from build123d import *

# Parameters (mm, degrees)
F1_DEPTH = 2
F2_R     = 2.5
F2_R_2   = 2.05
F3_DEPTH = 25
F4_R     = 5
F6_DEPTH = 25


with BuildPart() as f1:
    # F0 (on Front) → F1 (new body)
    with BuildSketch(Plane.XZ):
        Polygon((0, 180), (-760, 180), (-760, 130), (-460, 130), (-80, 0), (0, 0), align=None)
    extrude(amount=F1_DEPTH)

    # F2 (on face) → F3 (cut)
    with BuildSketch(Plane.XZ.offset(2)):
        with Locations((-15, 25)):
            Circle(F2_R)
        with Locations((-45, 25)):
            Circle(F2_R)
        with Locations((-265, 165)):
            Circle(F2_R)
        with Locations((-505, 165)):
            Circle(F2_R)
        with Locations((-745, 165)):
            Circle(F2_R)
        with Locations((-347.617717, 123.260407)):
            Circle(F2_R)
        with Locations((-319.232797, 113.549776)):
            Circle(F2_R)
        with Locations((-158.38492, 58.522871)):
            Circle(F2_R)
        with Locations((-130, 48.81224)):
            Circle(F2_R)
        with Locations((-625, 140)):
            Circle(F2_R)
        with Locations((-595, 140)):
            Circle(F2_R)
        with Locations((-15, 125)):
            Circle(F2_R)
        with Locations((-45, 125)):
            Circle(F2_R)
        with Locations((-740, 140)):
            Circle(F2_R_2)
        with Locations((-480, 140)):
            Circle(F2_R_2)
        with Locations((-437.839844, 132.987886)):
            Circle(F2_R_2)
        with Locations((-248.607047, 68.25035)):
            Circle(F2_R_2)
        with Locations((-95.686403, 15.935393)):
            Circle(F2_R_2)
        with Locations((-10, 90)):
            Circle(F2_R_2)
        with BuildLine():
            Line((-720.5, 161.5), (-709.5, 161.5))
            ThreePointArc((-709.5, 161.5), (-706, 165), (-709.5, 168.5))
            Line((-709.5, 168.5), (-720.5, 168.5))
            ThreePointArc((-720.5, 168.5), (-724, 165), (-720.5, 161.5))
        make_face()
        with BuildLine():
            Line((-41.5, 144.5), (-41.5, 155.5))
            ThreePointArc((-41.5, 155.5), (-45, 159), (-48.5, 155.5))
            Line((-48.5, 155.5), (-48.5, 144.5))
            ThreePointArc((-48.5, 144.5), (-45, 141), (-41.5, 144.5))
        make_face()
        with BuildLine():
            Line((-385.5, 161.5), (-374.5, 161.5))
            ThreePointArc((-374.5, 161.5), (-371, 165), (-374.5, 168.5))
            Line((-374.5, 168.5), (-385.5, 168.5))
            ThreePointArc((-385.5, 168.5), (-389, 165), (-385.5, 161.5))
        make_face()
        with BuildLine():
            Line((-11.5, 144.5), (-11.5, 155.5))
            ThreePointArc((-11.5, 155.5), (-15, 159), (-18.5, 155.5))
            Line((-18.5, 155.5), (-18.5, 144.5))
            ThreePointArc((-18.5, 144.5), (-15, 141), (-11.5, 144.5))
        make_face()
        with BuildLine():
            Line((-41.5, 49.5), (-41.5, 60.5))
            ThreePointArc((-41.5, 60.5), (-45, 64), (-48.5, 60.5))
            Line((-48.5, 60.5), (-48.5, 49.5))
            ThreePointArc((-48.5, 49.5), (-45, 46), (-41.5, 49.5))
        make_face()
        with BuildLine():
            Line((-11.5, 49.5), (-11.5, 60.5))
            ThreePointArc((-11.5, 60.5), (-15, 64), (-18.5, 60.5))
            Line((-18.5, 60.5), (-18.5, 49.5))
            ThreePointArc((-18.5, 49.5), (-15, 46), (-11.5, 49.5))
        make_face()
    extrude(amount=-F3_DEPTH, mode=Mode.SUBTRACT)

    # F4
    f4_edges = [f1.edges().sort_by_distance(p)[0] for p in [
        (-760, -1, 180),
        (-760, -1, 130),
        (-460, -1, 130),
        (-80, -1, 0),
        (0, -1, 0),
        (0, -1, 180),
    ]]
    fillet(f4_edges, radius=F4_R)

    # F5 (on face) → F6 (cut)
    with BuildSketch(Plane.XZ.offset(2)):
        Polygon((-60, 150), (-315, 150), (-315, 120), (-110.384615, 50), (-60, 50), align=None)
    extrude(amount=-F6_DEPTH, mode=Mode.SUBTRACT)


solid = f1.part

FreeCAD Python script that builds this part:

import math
import FreeCAD as App
import Part
import Sketcher
from FreeCAD import Vector


def edges_at(feature, points):
    """Names of the edges that pass closest to the given points."""
    edges = feature.Shape.Edges
    near = lambda p: min(range(len(edges)), key=lambda i: edges[i].distToShape(Part.Vertex(*p))[0])
    return sorted({f"Edge{near(p) + 1}" for p in points})

doc = App.newDocument("Part")
params = doc.addObject("Spreadsheet::Sheet", "Params")
for row, (alias, value) in enumerate([
    ("sketch1_width", "760 mm"),
    ("sketch1_width2", "300 mm"),
    ("sketch1_width3", "80 mm"),
    ("sketch1_height", "50 mm"),
    ("sketch1_height2", "180 mm"),
    ("pad1_length", "2 mm"),
    ("sketch2_diameter", "5 mm"),
    ("sketch2_diameter2", "4.1 mm"),
    ("sketch2_radius", "3.5 mm"),
    ("sketch2_width", "11 mm"),
    ("pocket1_length", "25 mm"),
    ("fillet_radius", "5 mm"),
    ("sketch3_width", "255 mm"),
    ("sketch3_height", "30 mm"),
    ("sketch3_height2", "100 mm"),
    ("pocket2_length", "25 mm"),
], start=1):
    params.set(f"A{row}", alias)
    params.set(f"B{row}", "=" + value)
    params.setAlias(f"B{row}", alias)

body = doc.addObject("PartDesign::Body", "Body")

sketch1 = doc.addObject("Sketcher::SketchObject", "Sketch")
body.addObject(sketch1)
sketch1.AttachmentSupport = (doc.XZ_Plane, [""])
sketch1.MapMode = "FlatFace"
sketch1.addGeometry(Part.LineSegment(Vector(0, 180, 0), Vector(-760, 180, 0)), False)
sketch1.addGeometry(Part.LineSegment(Vector(-760, 180, 0), Vector(-760, 130, 0)), False)
sketch1.addGeometry(Part.LineSegment(Vector(-760, 130, 0), Vector(-460, 130, 0)), False)
sketch1.addGeometry(Part.LineSegment(Vector(-460, 130, 0), Vector(-80, 0, 0)), False)
sketch1.addGeometry(Part.LineSegment(Vector(-80, 0, 0), Vector(0, 0, 0)), False)
sketch1.addGeometry(Part.LineSegment(Vector(0, 0, 0), Vector(0, 180, 0)), False)
sketch1.addConstraint(Sketcher.Constraint("Coincident", 0, 2, 1, 1))
sketch1.addConstraint(Sketcher.Constraint("Coincident", 1, 2, 2, 1))
sketch1.addConstraint(Sketcher.Constraint("Coincident", 2, 2, 3, 1))
sketch1.addConstraint(Sketcher.Constraint("Coincident", 3, 2, 4, 1))
sketch1.addConstraint(Sketcher.Constraint("Coincident", 4, 2, 5, 1))
sketch1.addConstraint(Sketcher.Constraint("Coincident", 5, 2, 0, 1))
sketch1.addConstraint(Sketcher.Constraint("Horizontal", 0))
sketch1.addConstraint(Sketcher.Constraint("Vertical", 1))
sketch1.addConstraint(Sketcher.Constraint("Horizontal", 2))
sketch1.addConstraint(Sketcher.Constraint("Horizontal", 4))
sketch1.addConstraint(Sketcher.Constraint("Vertical", 5))
sketch1.addConstraint(Sketcher.Constraint("Coincident", 4, 2, -1, 1))
sketch1.addConstraint(Sketcher.Constraint("DistanceX", 0, 2, 0, 1, 760.0))
sketch1.addConstraint(Sketcher.Constraint("DistanceX", 2, 1, 2, 2, 300.0))
sketch1.addConstraint(Sketcher.Constraint("DistanceX", 4, 1, 4, 2, 80.0))
sketch1.addConstraint(Sketcher.Constraint("DistanceY", 1, 2, 1, 1, 50.0))
sketch1.addConstraint(Sketcher.Constraint("DistanceY", 5, 1, 5, 2, 180.0))
sketch1.setExpression("Constraints[12]", "Params.sketch1_width")
sketch1.setExpression("Constraints[13]", "Params.sketch1_width2")
sketch1.setExpression("Constraints[14]", "Params.sketch1_width3")
sketch1.setExpression("Constraints[15]", "Params.sketch1_height")
sketch1.setExpression("Constraints[16]", "Params.sketch1_height2")
pad1 = doc.addObject("PartDesign::Pad", "Pad")
body.addObject(pad1)
pad1.Profile = sketch1
pad1.setExpression("Length", "Params.pad1_length")

sketch2 = doc.addObject("Sketcher::SketchObject", "Sketch001")
body.addObject(sketch2)
sketch2.AttachmentSupport = (doc.XZ_Plane, [""])
sketch2.MapMode = "FlatFace"
sketch2.AttachmentOffset = App.Placement(Vector(0, 0, 2), App.Rotation())
sketch2.addGeometry(Part.Circle(Vector(-15, 25, 0), Vector(0, 0, 1), 2.5), False)
sketch2.addGeometry(Part.Circle(Vector(-45, 25, 0), Vector(0, 0, 1), 2.5), False)
sketch2.addGeometry(Part.Circle(Vector(-265, 165, 0), Vector(0, 0, 1), 2.5), False)
sketch2.addGeometry(Part.Circle(Vector(-505, 165, 0), Vector(0, 0, 1), 2.5), False)
sketch2.addGeometry(Part.Circle(Vector(-745, 165, 0), Vector(0, 0, 1), 2.5), False)
sketch2.addGeometry(Part.Circle(Vector(-347.6, 123.3, 0), Vector(0, 0, 1), 2.5), False)
sketch2.addGeometry(Part.Circle(Vector(-319.2, 113.5, 0), Vector(0, 0, 1), 2.5), False)
sketch2.addGeometry(Part.Circle(Vector(-158.4, 58.5, 0), Vector(0, 0, 1), 2.5), False)
sketch2.addGeometry(Part.Circle(Vector(-130, 48.8, 0), Vector(0, 0, 1), 2.5), False)
sketch2.addGeometry(Part.Circle(Vector(-625, 140, 0), Vector(0, 0, 1), 2.5), False)
sketch2.addGeometry(Part.Circle(Vector(-595, 140, 0), Vector(0, 0, 1), 2.5), False)
sketch2.addGeometry(Part.Circle(Vector(-15, 125, 0), Vector(0, 0, 1), 2.5), False)
sketch2.addGeometry(Part.Circle(Vector(-45, 125, 0), Vector(0, 0, 1), 2.5), False)
sketch2.addGeometry(Part.Circle(Vector(-740, 140, 0), Vector(0, 0, 1), 2), False)
sketch2.addGeometry(Part.Circle(Vector(-480, 140, 0), Vector(0, 0, 1), 2), False)
sketch2.addGeometry(Part.Circle(Vector(-437.8, 133, 0), Vector(0, 0, 1), 2), False)
sketch2.addGeometry(Part.Circle(Vector(-248.6, 68.3, 0), Vector(0, 0, 1), 2), False)
sketch2.addGeometry(Part.Circle(Vector(-95.7, 15.9, 0), Vector(0, 0, 1), 2), False)
sketch2.addGeometry(Part.Circle(Vector(-10, 90, 0), Vector(0, 0, 1), 2), False)
sketch2.addGeometry(Part.LineSegment(Vector(-720.5, 161.5, 0), Vector(-709.5, 161.5, 0)), False)
sketch2.addGeometry(Part.ArcOfCircle(Part.Circle(Vector(-709.5, 165, 0), Vector(0, 0, 1), 3.5), math.radians(-90), math.radians(90)), False)
sketch2.addGeometry(Part.LineSegment(Vector(-709.5, 168.5, 0), Vector(-720.5, 168.5, 0)), False)
sketch2.addGeometry(Part.ArcOfCircle(Part.Circle(Vector(-720.5, 165, 0), Vector(0, 0, 1), 3.5), math.radians(90), math.radians(270)), False)
sketch2.addGeometry(Part.LineSegment(Vector(-41.5, 144.5, 0), Vector(-41.5, 155.5, 0)), False)
sketch2.addGeometry(Part.ArcOfCircle(Part.Circle(Vector(-45, 155.5, 0), Vector(0, 0, 1), 3.5), math.radians(0), math.radians(180)), False)
sketch2.addGeometry(Part.LineSegment(Vector(-48.5, 155.5, 0), Vector(-48.5, 144.5, 0)), False)
sketch2.addGeometry(Part.ArcOfCircle(Part.Circle(Vector(-45, 144.5, 0), Vector(0, 0, 1), 3.5), math.radians(180), math.radians(360)), False)
sketch2.addGeometry(Part.LineSegment(Vector(-385.5, 161.5, 0), Vector(-374.5, 161.5, 0)), False)
sketch2.addGeometry(Part.ArcOfCircle(Part.Circle(Vector(-374.5, 165, 0), Vector(0, 0, 1), 3.5), math.radians(-90), math.radians(90)), False)
sketch2.addGeometry(Part.LineSegment(Vector(-374.5, 168.5, 0), Vector(-385.5, 168.5, 0)), False)
sketch2.addGeometry(Part.ArcOfCircle(Part.Circle(Vector(-385.5, 165, 0), Vector(0, 0, 1), 3.5), math.radians(90), math.radians(270)), False)
sketch2.addGeometry(Part.LineSegment(Vector(-11.5, 144.5, 0), Vector(-11.5, 155.5, 0)), False)
sketch2.addGeometry(Part.ArcOfCircle(Part.Circle(Vector(-15, 155.5, 0), Vector(0, 0, 1), 3.5), math.radians(0), math.radians(180)), False)
sketch2.addGeometry(Part.LineSegment(Vector(-18.5, 155.5, 0), Vector(-18.5, 144.5, 0)), False)
sketch2.addGeometry(Part.ArcOfCircle(Part.Circle(Vector(-15, 144.5, 0), Vector(0, 0, 1), 3.5), math.radians(180), math.radians(360)), False)
sketch2.addGeometry(Part.LineSegment(Vector(-41.5, 49.5, 0), Vector(-41.5, 60.5, 0)), False)
sketch2.addGeometry(Part.ArcOfCircle(Part.Circle(Vector(-45, 60.5, 0), Vector(0, 0, 1), 3.5), math.radians(0), math.radians(180)), False)
sketch2.addGeometry(Part.LineSegment(Vector(-48.5, 60.5, 0), Vector(-48.5, 49.5, 0)), False)
sketch2.addGeometry(Part.ArcOfCircle(Part.Circle(Vector(-45, 49.5, 0), Vector(0, 0, 1), 3.5), math.radians(180), math.radians(360)), False)
sketch2.addGeometry(Part.LineSegment(Vector(-11.5, 49.5, 0), Vector(-11.5, 60.5, 0)), False)
sketch2.addGeometry(Part.ArcOfCircle(Part.Circle(Vector(-15, 60.5, 0), Vector(0, 0, 1), 3.5), math.radians(0), math.radians(180)), False)
sketch2.addGeometry(Part.LineSegment(Vector(-18.5, 60.5, 0), Vector(-18.5, 49.5, 0)), False)
sketch2.addGeometry(Part.ArcOfCircle(Part.Circle(Vector(-15, 49.5, 0), Vector(0, 0, 1), 3.5), math.radians(180), math.radians(360)), False)
sketch2.addConstraint(Sketcher.Constraint("Tangent", 19, 2, 20, 1))
sketch2.addConstraint(Sketcher.Constraint("Tangent", 20, 2, 21, 1))
sketch2.addConstraint(Sketcher.Constraint("Tangent", 21, 2, 22, 1))
sketch2.addConstraint(Sketcher.Constraint("Tangent", 22, 2, 19, 1))
sketch2.addConstraint(Sketcher.Constraint("Tangent", 23, 2, 24, 1))
sketch2.addConstraint(Sketcher.Constraint("Tangent", 24, 2, 25, 1))
sketch2.addConstraint(Sketcher.Constraint("Tangent", 25, 2, 26, 1))
sketch2.addConstraint(Sketcher.Constraint("Tangent", 26, 2, 23, 1))
sketch2.addConstraint(Sketcher.Constraint("Tangent", 27, 2, 28, 1))
sketch2.addConstraint(Sketcher.Constraint("Tangent", 28, 2, 29, 1))
sketch2.addConstraint(Sketcher.Constraint("Tangent", 29, 2, 30, 1))
sketch2.addConstraint(Sketcher.Constraint("Tangent", 30, 2, 27, 1))
sketch2.addConstraint(Sketcher.Constraint("Tangent", 31, 2, 32, 1))
sketch2.addConstraint(Sketcher.Constraint("Tangent", 32, 2, 33, 1))
sketch2.addConstraint(Sketcher.Constraint("Tangent", 33, 2, 34, 1))
sketch2.addConstraint(Sketcher.Constraint("Tangent", 34, 2, 31, 1))
sketch2.addConstraint(Sketcher.Constraint("Tangent", 35, 2, 36, 1))
sketch2.addConstraint(Sketcher.Constraint("Tangent", 36, 2, 37, 1))
sketch2.addConstraint(Sketcher.Constraint("Tangent", 37, 2, 38, 1))
sketch2.addConstraint(Sketcher.Constraint("Tangent", 38, 2, 35, 1))
sketch2.addConstraint(Sketcher.Constraint("Tangent", 39, 2, 40, 1))
sketch2.addConstraint(Sketcher.Constraint("Tangent", 40, 2, 41, 1))
sketch2.addConstraint(Sketcher.Constraint("Tangent", 41, 2, 42, 1))
sketch2.addConstraint(Sketcher.Constraint("Tangent", 42, 2, 39, 1))
sketch2.addConstraint(Sketcher.Constraint("Horizontal", 19))
sketch2.addConstraint(Sketcher.Constraint("Horizontal", 21))
sketch2.addConstraint(Sketcher.Constraint("Vertical", 23))
sketch2.addConstraint(Sketcher.Constraint("Vertical", 25))
sketch2.addConstraint(Sketcher.Constraint("Horizontal", 27))
sketch2.addConstraint(Sketcher.Constraint("Horizontal", 29))
sketch2.addConstraint(Sketcher.Constraint("Vertical", 31))
sketch2.addConstraint(Sketcher.Constraint("Vertical", 33))
sketch2.addConstraint(Sketcher.Constraint("Vertical", 35))
sketch2.addConstraint(Sketcher.Constraint("Vertical", 37))
sketch2.addConstraint(Sketcher.Constraint("Vertical", 39))
sketch2.addConstraint(Sketcher.Constraint("Vertical", 41))
sketch2.addConstraint(Sketcher.Constraint("Equal", 0, 1))
sketch2.addConstraint(Sketcher.Constraint("Equal", 1, 2))
sketch2.addConstraint(Sketcher.Constraint("Equal", 2, 3))
sketch2.addConstraint(Sketcher.Constraint("Equal", 3, 4))
sketch2.addConstraint(Sketcher.Constraint("Equal", 4, 5))
sketch2.addConstraint(Sketcher.Constraint("Equal", 5, 6))
sketch2.addConstraint(Sketcher.Constraint("Equal", 6, 7))
sketch2.addConstraint(Sketcher.Constraint("Equal", 7, 8))
sketch2.addConstraint(Sketcher.Constraint("Equal", 8, 9))
sketch2.addConstraint(Sketcher.Constraint("Equal", 9, 10))
sketch2.addConstraint(Sketcher.Constraint("Equal", 10, 11))
sketch2.addConstraint(Sketcher.Constraint("Equal", 11, 12))
sketch2.addConstraint(Sketcher.Constraint("Equal", 13, 14))
sketch2.addConstraint(Sketcher.Constraint("Equal", 14, 15))
sketch2.addConstraint(Sketcher.Constraint("Equal", 15, 16))
sketch2.addConstraint(Sketcher.Constraint("Equal", 16, 17))
sketch2.addConstraint(Sketcher.Constraint("Equal", 17, 18))
sketch2.addConstraint(Sketcher.Constraint("Equal", 22, 24))
sketch2.addConstraint(Sketcher.Constraint("Equal", 26, 28))
sketch2.addConstraint(Sketcher.Constraint("Equal", 30, 32))
sketch2.addConstraint(Sketcher.Constraint("Equal", 34, 36))
sketch2.addConstraint(Sketcher.Constraint("Equal", 38, 40))
sketch2.addConstraint(Sketcher.Constraint("Horizontal", 0, 3, 1, 3))
sketch2.addConstraint(Sketcher.Constraint("Horizontal", 2, 3, 3, 3))
sketch2.addConstraint(Sketcher.Constraint("Horizontal", 3, 3, 4, 3))
sketch2.addConstraint(Sketcher.Constraint("Horizontal", 9, 3, 10, 3))
sketch2.addConstraint(Sketcher.Constraint("Horizontal", 11, 3, 12, 3))
sketch2.addConstraint(Sketcher.Constraint("Horizontal", 10, 3, 13, 3))
sketch2.addConstraint(Sketcher.Constraint("Horizontal", 13, 3, 14, 3))
sketch2.addConstraint(Sketcher.Constraint("Horizontal", 4, 3, 20, 3))
sketch2.addConstraint(Sketcher.Constraint("Horizontal", 22, 3, 28, 3))
sketch2.addConstraint(Sketcher.Constraint("Horizontal", 24, 3, 32, 3))
sketch2.addConstraint(Sketcher.Constraint("Horizontal", 26, 3, 34, 3))
sketch2.addConstraint(Sketcher.Constraint("Horizontal", 36, 3, 40, 3))
sketch2.addConstraint(Sketcher.Constraint("Horizontal", 38, 3, 42, 3))
sketch2.addConstraint(Sketcher.Constraint("Vertical", 0, 3, 11, 3))
sketch2.addConstraint(Sketcher.Constraint("Vertical", 1, 3, 12, 3))
sketch2.addConstraint(Sketcher.Constraint("Vertical", 12, 3, 24, 3))
sketch2.addConstraint(Sketcher.Constraint("Vertical", 11, 3, 32, 3))
sketch2.addConstraint(Sketcher.Constraint("Vertical", 26, 3, 36, 3))
sketch2.addConstraint(Sketcher.Constraint("Vertical", 34, 3, 40, 3))
sketch2.addConstraint(Sketcher.Constraint("Equal", 21, 27))
sketch2.addConstraint(Sketcher.Constraint("Equal", 29, 23))
sketch2.addConstraint(Sketcher.Constraint("Equal", 33, 35))
sketch2.addConstraint(Sketcher.Constraint("Diameter", 0, 5.0))
sketch2.addConstraint(Sketcher.Constraint("Diameter", 13, 4.1))
sketch2.addConstraint(Sketcher.Constraint("Radius", 20, 3.5))
sketch2.addConstraint(Sketcher.Constraint("DistanceX", 19, 1, 19, 2, 11.0))
sketch2.addConstraint(Sketcher.Constraint("DistanceX", 0, 3, -1, 1, 15.0))
sketch2.addConstraint(Sketcher.Constraint("DistanceY", -1, 1, 0, 3, 25.0))
sketch2.addConstraint(Sketcher.Constraint("DistanceX", 1, 3, -1, 1, 45.0))
sketch2.addConstraint(Sketcher.Constraint("DistanceX", 2, 3, -1, 1, 265.0))
sketch2.addConstraint(Sketcher.Constraint("DistanceY", -1, 1, 2, 3, 165.0))
sketch2.addConstraint(Sketcher.Constraint("DistanceX", 3, 3, -1, 1, 505.0))
sketch2.addConstraint(Sketcher.Constraint("DistanceX", 4, 3, -1, 1, 745.0))
sketch2.addConstraint(Sketcher.Constraint("DistanceX", 8, 3, -1, 1, 130.0))
sketch2.addConstraint(Sketcher.Constraint("DistanceX", 9, 3, -1, 1, 625.0))
sketch2.addConstraint(Sketcher.Constraint("DistanceY", -1, 1, 9, 3, 140.0))
sketch2.addConstraint(Sketcher.Constraint("DistanceX", 10, 3, -1, 1, 595.0))
sketch2.addConstraint(Sketcher.Constraint("DistanceY", -1, 1, 11, 3, 125.0))
sketch2.addConstraint(Sketcher.Constraint("DistanceX", 13, 3, -1, 1, 740.0))
sketch2.addConstraint(Sketcher.Constraint("DistanceX", 14, 3, -1, 1, 480.0))
sketch2.addConstraint(Sketcher.Constraint("DistanceX", 18, 3, -1, 1, 10.0))
sketch2.addConstraint(Sketcher.Constraint("DistanceY", -1, 1, 18, 3, 90.0))
sketch2.addConstraint(Sketcher.Constraint("DistanceX", 20, 3, -1, 1, 709.5))
sketch2.addConstraint(Sketcher.Constraint("DistanceY", -1, 1, 24, 3, 155.5))
sketch2.addConstraint(Sketcher.Constraint("DistanceX", 28, 3, -1, 1, 374.5))
sketch2.addConstraint(Sketcher.Constraint("DistanceY", -1, 1, 36, 3, 60.5))
sketch2.addConstraint(Sketcher.Constraint("DistanceX", 7, 3, -1, 1, 158.38492))
sketch2.addConstraint(Sketcher.Constraint("DistanceY", -1, 1, 7, 3, 58.522871))
sketch2.addConstraint(Sketcher.Constraint("DistanceY", -1, 1, 8, 3, 48.81224))
sketch2.addConstraint(Sketcher.Constraint("DistanceY", -1, 1, 16, 3, 68.25035))
sketch2.addConstraint(Sketcher.Constraint("DistanceX", 5, 3, 6, 3, 28.38492))
sketch2.addConstraint(Sketcher.Constraint("DistanceY", 6, 3, 5, 3, 9.710631))
sketch2.addConstraint(Sketcher.Constraint("DistanceY", 5, 3, 15, 3, 9.727479))
sketch2.addConstraint(Sketcher.Constraint("DistanceX", 6, 3, 16, 3, 70.62575))
sketch2.addConstraint(Sketcher.Constraint("DistanceY", 17, 3, 7, 3, 42.587478))
sketch2.addConstraint(Sketcher.Constraint("DistanceX", 5, 3, -1, 1, 347.617717))
sketch2.addConstraint(Sketcher.Constraint("DistanceY", -1, 1, 5, 3, 123.260407))
sketch2.addConstraint(Sketcher.Constraint("DistanceX", 15, 3, -1, 1, 437.839844))
sketch2.addConstraint(Sketcher.Constraint("DistanceX", 17, 3, -1, 1, 95.686403))
sketch2.setExpression("Constraints[80]", "Params.sketch2_diameter")
sketch2.setExpression("Constraints[81]", "Params.sketch2_diameter2")
sketch2.setExpression("Constraints[82]", "Params.sketch2_radius")
sketch2.setExpression("Constraints[83]", "Params.sketch2_width")
pocket1 = doc.addObject("PartDesign::Pocket", "Pocket")
body.addObject(pocket1)
pocket1.Profile = sketch2
pocket1.setExpression("Length", "Params.pocket1_length")
doc.recompute()

fillet = doc.addObject("PartDesign::Fillet", "Fillet")
body.addObject(fillet)
fillet.Base = (pocket1, edges_at(pocket1, [
    (-760, -1, 180),
    (-760, -1, 130),
    (-460, -1, 130),
    (-80, -1, 0),
    (0, -1, 0),
    (0, -1, 180),
]))
fillet.setExpression("Radius", "Params.fillet_radius")

sketch3 = doc.addObject("Sketcher::SketchObject", "Sketch002")
body.addObject(sketch3)
sketch3.AttachmentSupport = (doc.XZ_Plane, [""])
sketch3.MapMode = "FlatFace"
sketch3.AttachmentOffset = App.Placement(Vector(0, 0, 2), App.Rotation())
sketch3.addGeometry(Part.LineSegment(Vector(-60, 150, 0), Vector(-315, 150, 0)), False)
sketch3.addGeometry(Part.LineSegment(Vector(-315, 150, 0), Vector(-315, 120, 0)), False)
sketch3.addGeometry(Part.LineSegment(Vector(-315, 120, 0), Vector(-110, 50, 0)), False)
sketch3.addGeometry(Part.LineSegment(Vector(-110, 50, 0), Vector(-60, 50, 0)), False)
sketch3.addGeometry(Part.LineSegment(Vector(-60, 50, 0), Vector(-60, 150, 0)), False)
sketch3.addConstraint(Sketcher.Constraint("Coincident", 0, 2, 1, 1))
sketch3.addConstraint(Sketcher.Constraint("Coincident", 1, 2, 2, 1))
sketch3.addConstraint(Sketcher.Constraint("Coincident", 2, 2, 3, 1))
sketch3.addConstraint(Sketcher.Constraint("Coincident", 3, 2, 4, 1))
sketch3.addConstraint(Sketcher.Constraint("Coincident", 4, 2, 0, 1))
sketch3.addConstraint(Sketcher.Constraint("Horizontal", 0))
sketch3.addConstraint(Sketcher.Constraint("Vertical", 1))
sketch3.addConstraint(Sketcher.Constraint("Horizontal", 3))
sketch3.addConstraint(Sketcher.Constraint("Vertical", 4))
sketch3.addConstraint(Sketcher.Constraint("DistanceX", 0, 2, 0, 1, 255.0))
sketch3.addConstraint(Sketcher.Constraint("DistanceY", 1, 2, 1, 1, 30.0))
sketch3.addConstraint(Sketcher.Constraint("DistanceY", 4, 1, 4, 2, 100.0))
sketch3.addConstraint(Sketcher.Constraint("DistanceX", 0, 2, -1, 1, 315.0))
sketch3.addConstraint(Sketcher.Constraint("DistanceY", -1, 1, 0, 2, 150.0))
sketch3.addConstraint(Sketcher.Constraint("DistanceX", 3, 1, 3, 2, 50.384615))
sketch3.setExpression("Constraints[9]", "Params.sketch3_width")
sketch3.setExpression("Constraints[10]", "Params.sketch3_height")
sketch3.setExpression("Constraints[11]", "Params.sketch3_height2")
pocket2 = doc.addObject("PartDesign::Pocket", "Pocket001")
body.addObject(pocket2)
pocket2.Profile = sketch3
pocket2.setExpression("Length", "Params.pocket2_length")

doc.recompute()
